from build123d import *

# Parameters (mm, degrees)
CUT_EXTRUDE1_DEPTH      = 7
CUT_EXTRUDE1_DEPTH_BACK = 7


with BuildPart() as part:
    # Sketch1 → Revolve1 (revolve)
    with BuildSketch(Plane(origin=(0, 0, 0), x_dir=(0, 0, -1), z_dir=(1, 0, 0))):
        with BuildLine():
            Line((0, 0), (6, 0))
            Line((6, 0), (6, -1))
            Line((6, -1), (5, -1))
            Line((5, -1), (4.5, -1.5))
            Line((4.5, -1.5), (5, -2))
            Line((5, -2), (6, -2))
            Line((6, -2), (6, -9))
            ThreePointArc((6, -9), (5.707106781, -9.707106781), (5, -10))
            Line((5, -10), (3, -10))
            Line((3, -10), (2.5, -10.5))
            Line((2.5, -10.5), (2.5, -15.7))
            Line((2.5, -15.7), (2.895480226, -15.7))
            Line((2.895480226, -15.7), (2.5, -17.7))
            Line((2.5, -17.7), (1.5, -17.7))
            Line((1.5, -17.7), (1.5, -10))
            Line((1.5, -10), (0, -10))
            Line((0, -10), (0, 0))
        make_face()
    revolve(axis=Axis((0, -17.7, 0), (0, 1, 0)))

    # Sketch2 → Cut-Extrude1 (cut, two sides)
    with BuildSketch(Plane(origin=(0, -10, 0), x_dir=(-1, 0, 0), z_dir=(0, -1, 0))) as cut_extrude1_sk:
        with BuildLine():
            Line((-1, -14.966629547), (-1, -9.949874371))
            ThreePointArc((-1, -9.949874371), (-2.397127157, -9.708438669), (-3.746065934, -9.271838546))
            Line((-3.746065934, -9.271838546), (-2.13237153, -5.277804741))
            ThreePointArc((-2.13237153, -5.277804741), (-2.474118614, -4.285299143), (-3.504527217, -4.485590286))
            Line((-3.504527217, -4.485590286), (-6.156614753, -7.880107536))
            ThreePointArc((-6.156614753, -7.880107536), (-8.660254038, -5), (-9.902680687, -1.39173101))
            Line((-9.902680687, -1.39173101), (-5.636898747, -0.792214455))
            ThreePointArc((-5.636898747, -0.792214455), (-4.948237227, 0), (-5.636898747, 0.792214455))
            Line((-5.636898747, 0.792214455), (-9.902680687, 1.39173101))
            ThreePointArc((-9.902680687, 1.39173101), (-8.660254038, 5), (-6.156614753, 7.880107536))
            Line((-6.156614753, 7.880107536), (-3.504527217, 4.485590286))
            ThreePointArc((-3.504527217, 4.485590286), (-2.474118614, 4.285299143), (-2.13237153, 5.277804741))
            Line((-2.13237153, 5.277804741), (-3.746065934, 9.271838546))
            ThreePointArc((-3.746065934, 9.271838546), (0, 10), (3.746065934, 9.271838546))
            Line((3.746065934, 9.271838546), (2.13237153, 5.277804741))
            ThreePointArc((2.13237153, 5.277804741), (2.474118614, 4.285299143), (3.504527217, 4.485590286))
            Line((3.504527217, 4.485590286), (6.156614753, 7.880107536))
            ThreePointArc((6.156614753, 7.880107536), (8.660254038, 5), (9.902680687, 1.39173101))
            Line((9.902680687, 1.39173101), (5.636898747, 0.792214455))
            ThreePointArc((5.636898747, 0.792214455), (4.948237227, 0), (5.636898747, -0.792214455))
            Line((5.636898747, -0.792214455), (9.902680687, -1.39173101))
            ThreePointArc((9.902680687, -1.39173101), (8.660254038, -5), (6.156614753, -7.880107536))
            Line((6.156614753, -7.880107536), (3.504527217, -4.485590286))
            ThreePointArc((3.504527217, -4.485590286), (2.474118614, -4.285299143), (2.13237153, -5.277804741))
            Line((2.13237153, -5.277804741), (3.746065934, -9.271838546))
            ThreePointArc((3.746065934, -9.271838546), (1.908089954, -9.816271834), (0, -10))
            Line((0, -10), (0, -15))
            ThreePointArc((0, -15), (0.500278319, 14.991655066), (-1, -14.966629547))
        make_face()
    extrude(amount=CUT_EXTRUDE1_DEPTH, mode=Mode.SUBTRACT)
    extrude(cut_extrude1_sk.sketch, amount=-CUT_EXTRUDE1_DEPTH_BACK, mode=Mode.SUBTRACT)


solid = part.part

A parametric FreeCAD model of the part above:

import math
import FreeCAD as App
import Part
import Sketcher

V = App.Vector
Q = App.Units.Quantity

doc = App.newDocument("Part")
body = doc.addObject("PartDesign::Body", "Body")

sketch1 = body.newObject("Sketcher::SketchObject", "Sketch")
sketch1.AttachmentSupport = (doc.getObject("YZ_Plane"), [""])
sketch1.MapMode = "FlatFace"
sketch1.addGeometry([
    Part.LineSegment(V(0, -6, 0), V(0, 0, 0)),
    Part.LineSegment(V(0, 0, 0), V(-10, 0, 0)),
    Part.LineSegment(V(-10, 0, 0), V(-10, -1.5, 0)),
    Part.LineSegment(V(-10, -1.5, 0), V(-17.7, -1.5, 0)),
    Part.LineSegment(V(-17.7, -1.5, 0), V(-17.7, -2.5, 0)),
    Part.LineSegment(V(-17.7, -2.5, 0), V(-15.7, -2.9, 0)),
    Part.LineSegment(V(-15.7, -2.9, 0), V(-15.7, -2.5, 0)),
    Part.LineSegment(V(-15.7, -2.5, 0), V(-10.5, -2.5, 0)),
    Part.LineSegment(V(-10.5, -2.5, 0), V(-10, -3, 0)),
    Part.LineSegment(V(-10, -3, 0), V(-10, -5, 0)),
    Part.ArcOfCircle(Part.Circle(V(-9, -5, 0), V(0, 0, 1), 1), math.radians(-180), math.radians(-90)),
    Part.LineSegment(V(-9, -6, 0), V(-2, -6, 0)),
    Part.LineSegment(V(-2, -6, 0), V(-2, -5, 0)),
    Part.LineSegment(V(-2, -5, 0), V(-1.5, -4.5, 0)),
    Part.LineSegment(V(-1.5, -4.5, 0), V(-1, -5, 0)),
    Part.LineSegment(V(-1, -5, 0), V(-1, -6, 0)),
    Part.LineSegment(V(-1, -6, 0), V(0, -6, 0)),
], False)
sketch1.addConstraint([
    Sketcher.Constraint("Coincident", 0, 2, 1, 1),
    Sketcher.Constraint("Coincident", 1, 2, 2, 1),
    Sketcher.Constraint("Coincident", 2, 2, 3, 1),
    Sketcher.Constraint("Coincident", 3, 2, 4, 1),
    Sketcher.Constraint("Coincident", 4, 2, 5, 1),
    Sketcher.Constraint("Coincident", 5, 2, 6, 1),
    Sketcher.Constraint("Coincident", 6, 2, 7, 1),
    Sketcher.Constraint("Coincident", 7, 2, 8, 1),
    Sketcher.Constraint("Coincident", 8, 2, 9, 1),
    Sketcher.Constraint("Tangent", 9, 2, 10, 1),
    Sketcher.Constraint("Tangent", 10, 2, 11, 1),
    Sketcher.Constraint("Coincident", 11, 2, 12, 1),
    Sketcher.Constraint("Coincident", 12, 2, 13, 1),
    Sketcher.Constraint("Coincident", 13, 2, 14, 1),
    Sketcher.Constraint("Coincident", 14, 2, 15, 1),
    Sketcher.Constraint("Coincident", 15, 2, 16, 1),
    Sketcher.Constraint("Coincident", 16, 2, 0, 1),
    Sketcher.Constraint("Vertical", 0),
    Sketcher.Constraint("Horizontal", 1),
    Sketcher.Constraint("Vertical", 2),
    Sketcher.Constraint("Horizontal", 3),
    Sketcher.Constraint("Vertical", 4),
    Sketcher.Constraint("Vertical", 6),
    Sketcher.Constraint("Horizontal", 7),
    Sketcher.Constraint("Vertical", 9),
    Sketcher.Constraint("Horizontal", 11),
    Sketcher.Constraint("Vertical", 12),
    Sketcher.Constraint("Vertical", 15),
    Sketcher.Constraint("Horizontal", 16),
    Sketcher.Constraint("Coincident", 0, 2, -1, 1),
    Sketcher.Constraint("Perpendicular", 8, 13),
    Sketcher.Constraint("Perpendicular", 13, 14),
    Sketcher.Constraint("Horizontal", 4, 2, 6, 2),
    Sketcher.Constraint("Horizontal", 9, 2, 12, 2),
    Sketcher.Constraint("Horizontal", 12, 2, 14, 2),
    Sketcher.Constraint("Horizontal", 11, 2, 15, 2),
    Sketcher.Constraint("Vertical", 2, 2, 8, 2),
    Sketcher.Constraint("Equal", 16, 4),
    Sketcher.Constraint("Equal", 4, 12),
    Sketcher.Constraint("Equal", 8, 13),
    Sketcher.Constraint("Equal", 13, 14),
    Sketcher.Constraint("Radius", 10, 1.0),
    Sketcher.Constraint("DistanceX", 1, 2, 1, 1, 10.0),
    Sketcher.Constraint("DistanceX", 11, 1, 11, 2, 7.0),
    Sketcher.Constraint("DistanceY", 0, 1, 0, 2, 6.0),
    Sketcher.Constraint("DistanceY", 9, 2, 9, 1, 2.0),
    Sketcher.Constraint("DistanceX", 3, 2, 3, 1, 7.7),
    Sketcher.Constraint("DistanceX", 7, 1, 7, 2, 5.2),
    Sketcher.Constraint("DistanceY", 6, 1, 6, 2, 0.39548),
])
revolution = body.newObject("PartDesign::Revolution", "Revolution")
revolution.Profile = sketch1
revolution.ReferenceAxis = (sketch1, ["H_Axis"])
revolution.Angle = 360

sketch2 = body.newObject("Sketcher::SketchObject", "Sketch001")
sketch2.AttachmentSupport = (doc.getObject("XZ_Plane"), [""])
sketch2.MapMode = "FlatFace"
sketch2.AttachmentOffset = App.Placement(V(0, 0, 10), App.Rotation())
sketch2.addGeometry([
    Part.LineSegment(V(1, 15, 0), V(1, 9.9, 0)),
    Part.ArcOfCircle(Part.Circle(V(0, 0, 0), V(0, 0, 1), 10), math.radians(68), math.radians(84.26)),
    Part.LineSegment(V(3.7, 9.3, 0), V(2.1, 5.3, 0)),
    Part.ArcOfCircle(Part.Circle(V(2.9, 5, 0), V(0, 0, 1), 0.8), math.radians(158), math.radians(322)),
    Part.LineSegment(V(3.5, 4.5, 0), V(6.2, 7.9, 0)),
    Part.ArcOfCircle(Part.Circle(V(0, 0, 0), V(0, 0, 1), 10), math.radians(8), math.radians(52)),
    Part.LineSegment(V(9.9, 1.4, 0), V(5.6, 0.8, 0)),
    Part.ArcOfCircle(Part.Circle(V(5.7, 0, 0), V(0, 0, 1), 0.8), math.radians(98), math.radians(262)),
    Part.LineSegment(V(5.6, -0.8, 0), V(9.9, -1.4, 0)),
    Part.ArcOfCircle(Part.Circle(V(0, 0, 0), V(0, 0, 1), 10), math.radians(-52), math.radians(-8)),
    Part.LineSegment(V(6.2, -7.9, 0), V(3.5, -4.5, 0)),
    Part.ArcOfCircle(Part.Circle(V(2.9, -5, 0), V(0, 0, 1), 0.8), math.radians(38), math.radians(202)),
    Part.LineSegment(V(2.1, -5.3, 0), V(3.7, -9.3, 0)),
    Part.ArcOfCircle(Part.Circle(V(0, 0, 0), V(0, 0, 1), 10), math.radians(-112), math.radians(-68)),
    Part.LineSegment(V(-3.7, -9.3, 0), V(-2.1, -5.3, 0)),
    Part.ArcOfCircle(Part.Circle(V(-2.9, -5, 0), V(0, 0, 1), 0.8), math.radians(-22), math.radians(142)),
    Part.LineSegment(V(-3.5, -4.5, 0), V(-6.2, -7.9, 0)),
    Part.ArcOfCircle(Part.Circle(V(0, 0, 0), V(0, 0, 1), 10), math.radians(-172), math.radians(-128)),
    Part.LineSegment(V(-9.9, -1.4, 0), V(-5.6, -0.8, 0)),
    Part.ArcOfCircle(Part.Circle(V(-5.7, 0, 0), V(0, 0, 1), 0.8), math.radians(-82), math.radians(82)),
    Part.LineSegment(V(-5.6, 0.8, 0), V(-9.9, 1.4, 0)),
    Part.ArcOfCircle(Part.Circle(V(0, 0, 0), V(0, 0, 1), 10), math.radians(128), math.radians(172)),
    Part.LineSegment(V(-6.2, 7.9, 0), V(-3.5, 4.5, 0)),
    Part.ArcOfCircle(Part.Circle(V(-2.9, 5, 0), V(0, 0, 1), 0.8), math.radians(-142), math.radians(22)),
    Part.LineSegment(V(-2.1, 5.3, 0), V(-3.7, 9.3, 0)),
    Part.ArcOfCircle(Part.Circle(V(0, 0, 0), V(0, 0, 1), 10), math.radians(90), math.radians(112)),
    Part.LineSegment(V(0, 10, 0), V(0, 15, 0)),
    Part.ArcOfCircle(Part.Circle(V(0, 0, 0), V(0, 0, 1), 15), math.radians(90), math.radians(446)),
], False)
sketch2.addConstraint([
    Sketcher.Constraint("Coincident", 0, 2, 1, 2),
    Sketcher.Constraint("Coincident", 1, 1, 2, 1),
    Sketcher.Constraint("Tangent", 2, 2, 3, 1),
    Sketcher.Constraint("Tangent", 3, 2, 4, 1),
    Sketcher.Constraint("Coincident", 4, 2, 5, 2),
    Sketcher.Constraint("Coincident", 5, 1, 6, 1),
    Sketcher.Constraint("Tangent", 6, 2, 7, 1),
    Sketcher.Constraint("Tangent", 7, 2, 8, 1),
    Sketcher.Constraint("Coincident", 8, 2, 9, 2),
    Sketcher.Constraint("Coincident", 9, 1, 10, 1),
    Sketcher.Constraint("Tangent", 10, 2, 11, 1),
    Sketcher.Constraint("Tangent", 11, 2, 12, 1),
    Sketcher.Constraint("Coincident", 12, 2, 13, 2),
    Sketcher.Constraint("Coincident", 13, 1, 14, 1),
    Sketcher.Constraint("Tangent", 14, 2, 15, 1),
    Sketcher.Constraint("Tangent", 15, 2, 16, 1),
    Sketcher.Constraint("Coincident", 16, 2, 17, 2),
    Sketcher.Constraint("Coincident", 17, 1, 18, 1),
    Sketcher.Constraint("Tangent", 18, 2, 19, 1),
    Sketcher.Constraint("Tangent", 19, 2, 20, 1),
    Sketcher.Constraint("Coincident", 20, 2, 21, 2),
    Sketcher.Constraint("Coincident", 21, 1, 22, 1),
    Sketcher.Constraint("Tangent", 22, 2, 23, 1),
    Sketcher.Constraint("Tangent", 23, 2, 24, 1),
    Sketcher.Constraint("Coincident", 24, 2, 25, 2),
    Sketcher.Constraint("Coincident", 25, 1, 26, 1),
    Sketcher.Constraint("Coincident", 26, 2, 27, 1),
    Sketcher.Constraint("Coincident", 27, 2, 0, 1),
    Sketcher.Constraint("Vertical", 0),
    Sketcher.Constraint("Vertical", 26),
    Sketcher.Constraint("Coincident", 1, 3, -1, 1),
    Sketcher.Constraint("Coincident", 5, 3, -1, 1),
    Sketcher.Constraint("Coincident", 9, 3, -1, 1),
    Sketcher.Constraint("Coincident", 13, 3, -1, 1),
    Sketcher.Constraint("Coincident", 17, 3, -1, 1),
    Sketcher.Constraint("Coincident", 21, 3, -1, 1),
    Sketcher.Constraint("Coincident", 25, 3, -1, 1),
    Sketcher.Constraint("Coincident", 27, 3, -1, 1),
    Sketcher.Constraint("Equal", 1, 5),
    Sketcher.Constraint("Equal", 3, 7),
    Sketcher.Constraint("Equal", 5, 9),
    Sketcher.Constraint("Equal", 7, 11),
    Sketcher.Constraint("Equal", 9, 13),
    Sketcher.Constraint("Equal", 11, 15),
    Sketcher.Constraint("Equal", 13, 17),
    Sketcher.Constraint("Equal", 15, 19),
    Sketcher.Constraint("Equal", 17, 21),
    Sketcher.Constraint("Equal", 19, 23),
    Sketcher.Constraint("Equal", 21, 25),
    Sketcher.Constraint("Symmetric", 3, 3, 15, 3, -1, 1),
    Sketcher.Constraint("Symmetric", 7, 3, 19, 3, -1, 1),
    Sketcher.Constraint("Symmetric", 11, 3, 23, 3, -1, 1),
    Sketcher.Constraint("Symmetric", 11, 3, 15, 3, -2),
    Sketcher.Constraint("Symmetric", 7, 2, 18, 2, -2),
    Sketcher.Constraint("PointOnObject", 25, 1, -2),
    Sketcher.Constraint("Parallel", 2, 14),
    Sketcher.Constraint("Parallel", 4, 16),
    Sketcher.Constraint("Parallel", 6, 18),
    Sketcher.Constraint("Parallel", 8, 20),
    Sketcher.Constraint("Parallel", 10, 22),
    Sketcher.Constraint("Parallel", 12, 24),
    Sketcher.Constraint("Horizontal", 12, 2, 13, 1),
    Sketcher.Constraint("Horizontal", 10, 2, 15, 2),
    Sketcher.Constraint("Equal", 2, 4),
    Sketcher.Constraint("Equal", 4, 6),
    Sketcher.Constraint("Radius", 1, 10.0),
    Sketcher.Constraint("Radius", 27, 15.0),
    Sketcher.Constraint("Radius", 3, 0.8),
    Sketcher.Constraint("Angle", 2, Q("-112 deg")),
    Sketcher.Constraint("Angle", 4, Q("52 deg")),
    Sketcher.Constraint("Angle", 6, Q("-172 deg")),
    Sketcher.Constraint("DistanceX", -1, 1, 0, 2, 1.0),
    Sketcher.Constraint("DistanceX", -1, 1, 6, 2, 5.636899),
])
pocket1 = body.newObject("PartDesign::Pocket", "Pocket")
pocket1.Profile = sketch2
pocket1.Type = "TwoLengths"
pocket1.Length = 7
pocket1.Length2 = 7
pocket1.Reversed = True

doc.recompute()
